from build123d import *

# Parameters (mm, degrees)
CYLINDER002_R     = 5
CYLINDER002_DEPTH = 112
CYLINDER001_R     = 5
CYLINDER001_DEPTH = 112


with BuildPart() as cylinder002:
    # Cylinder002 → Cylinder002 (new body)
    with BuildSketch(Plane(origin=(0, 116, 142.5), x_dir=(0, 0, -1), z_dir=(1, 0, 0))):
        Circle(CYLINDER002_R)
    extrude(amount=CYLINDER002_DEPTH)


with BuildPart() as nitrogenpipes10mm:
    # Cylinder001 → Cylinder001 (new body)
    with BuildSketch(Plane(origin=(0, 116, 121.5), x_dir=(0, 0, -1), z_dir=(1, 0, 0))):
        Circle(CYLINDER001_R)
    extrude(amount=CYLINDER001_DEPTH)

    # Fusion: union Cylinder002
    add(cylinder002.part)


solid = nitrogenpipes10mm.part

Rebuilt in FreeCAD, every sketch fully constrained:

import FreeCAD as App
import Part
import Sketcher

V = App.Vector

doc = App.newDocument("Part")
params = doc.addObject("Spreadsheet::Sheet", "Params")
for row, (alias, value) in enumerate([
    ("sketch1_diameter", "10 mm"),
    ("pad1_length", "112 mm"),
    ("sketch2_diameter", "10 mm"),
    ("pad2_length", "112 mm"),
], start=1):
    params.set(f"A{row}", alias)
    params.set(f"B{row}", "=" + value)
    params.setAlias(f"B{row}", alias)

body = doc.addObject("PartDesign::Body", "Body")

# Sketch on YZ plane
sketch1 = body.newObject("Sketcher::SketchObject", "Sketch")
sketch1.AttachmentSupport = (doc.getObject("YZ_Plane"), [""])
sketch1.MapMode = "FlatFace"
sketch1.addGeometry(Part.Circle(V(116, 142, 0), V(0, 0, 1), 5), False)
sketch1.addConstraint(Sketcher.Constraint("Diameter", 0, 10.0))
sketch1.addConstraint(Sketcher.Constraint("DistanceX", -1, 1, 0, 3, 116.0))
sketch1.addConstraint(Sketcher.Constraint("DistanceY", -1, 1, 0, 3, 142.5))
sketch1.setExpression("Constraints[0]", "Params.sketch1_diameter")
pad1 = body.newObject("PartDesign::Pad", "Pad")
pad1.Profile = sketch1
pad1.setExpression("Length", "Params.pad1_length")
body2 = doc.addObject("PartDesign::Body", "Body001")
body2.AllowCompound = True

# Sketch on YZ plane
sketch2 = body2.newObject("Sketcher::SketchObject", "Sketch001")
sketch2.AttachmentSupport = (doc.getObject("YZ_Plane001"), [""])
sketch2.MapMode = "FlatFace"
sketch2.addGeometry(Part.Circle(V(116, 122, 0), V(0, 0, 1), 5), False)
sketch2.addConstraint(Sketcher.Constraint("Diameter", 0, 10.0))
sketch2.addConstraint(Sketcher.Constraint("DistanceX", -1, 1, 0, 3, 116.0))
sketch2.addConstraint(Sketcher.Constraint("DistanceY", -1, 1, 0, 3, 121.5))
sketch2.setExpression("Constraints[0]", "Params.sketch2_diameter")
pad2 = body2.newObject("PartDesign::Pad", "Pad001")
pad2.Profile = sketch2
pad2.setExpression("Length", "Params.pad2_length")
doc.recompute()

boolean = body2.newObject("PartDesign::Boolean", "Boolean")
boolean.Type = "Fuse"
boolean.addObjects([body])

doc.recompute()
